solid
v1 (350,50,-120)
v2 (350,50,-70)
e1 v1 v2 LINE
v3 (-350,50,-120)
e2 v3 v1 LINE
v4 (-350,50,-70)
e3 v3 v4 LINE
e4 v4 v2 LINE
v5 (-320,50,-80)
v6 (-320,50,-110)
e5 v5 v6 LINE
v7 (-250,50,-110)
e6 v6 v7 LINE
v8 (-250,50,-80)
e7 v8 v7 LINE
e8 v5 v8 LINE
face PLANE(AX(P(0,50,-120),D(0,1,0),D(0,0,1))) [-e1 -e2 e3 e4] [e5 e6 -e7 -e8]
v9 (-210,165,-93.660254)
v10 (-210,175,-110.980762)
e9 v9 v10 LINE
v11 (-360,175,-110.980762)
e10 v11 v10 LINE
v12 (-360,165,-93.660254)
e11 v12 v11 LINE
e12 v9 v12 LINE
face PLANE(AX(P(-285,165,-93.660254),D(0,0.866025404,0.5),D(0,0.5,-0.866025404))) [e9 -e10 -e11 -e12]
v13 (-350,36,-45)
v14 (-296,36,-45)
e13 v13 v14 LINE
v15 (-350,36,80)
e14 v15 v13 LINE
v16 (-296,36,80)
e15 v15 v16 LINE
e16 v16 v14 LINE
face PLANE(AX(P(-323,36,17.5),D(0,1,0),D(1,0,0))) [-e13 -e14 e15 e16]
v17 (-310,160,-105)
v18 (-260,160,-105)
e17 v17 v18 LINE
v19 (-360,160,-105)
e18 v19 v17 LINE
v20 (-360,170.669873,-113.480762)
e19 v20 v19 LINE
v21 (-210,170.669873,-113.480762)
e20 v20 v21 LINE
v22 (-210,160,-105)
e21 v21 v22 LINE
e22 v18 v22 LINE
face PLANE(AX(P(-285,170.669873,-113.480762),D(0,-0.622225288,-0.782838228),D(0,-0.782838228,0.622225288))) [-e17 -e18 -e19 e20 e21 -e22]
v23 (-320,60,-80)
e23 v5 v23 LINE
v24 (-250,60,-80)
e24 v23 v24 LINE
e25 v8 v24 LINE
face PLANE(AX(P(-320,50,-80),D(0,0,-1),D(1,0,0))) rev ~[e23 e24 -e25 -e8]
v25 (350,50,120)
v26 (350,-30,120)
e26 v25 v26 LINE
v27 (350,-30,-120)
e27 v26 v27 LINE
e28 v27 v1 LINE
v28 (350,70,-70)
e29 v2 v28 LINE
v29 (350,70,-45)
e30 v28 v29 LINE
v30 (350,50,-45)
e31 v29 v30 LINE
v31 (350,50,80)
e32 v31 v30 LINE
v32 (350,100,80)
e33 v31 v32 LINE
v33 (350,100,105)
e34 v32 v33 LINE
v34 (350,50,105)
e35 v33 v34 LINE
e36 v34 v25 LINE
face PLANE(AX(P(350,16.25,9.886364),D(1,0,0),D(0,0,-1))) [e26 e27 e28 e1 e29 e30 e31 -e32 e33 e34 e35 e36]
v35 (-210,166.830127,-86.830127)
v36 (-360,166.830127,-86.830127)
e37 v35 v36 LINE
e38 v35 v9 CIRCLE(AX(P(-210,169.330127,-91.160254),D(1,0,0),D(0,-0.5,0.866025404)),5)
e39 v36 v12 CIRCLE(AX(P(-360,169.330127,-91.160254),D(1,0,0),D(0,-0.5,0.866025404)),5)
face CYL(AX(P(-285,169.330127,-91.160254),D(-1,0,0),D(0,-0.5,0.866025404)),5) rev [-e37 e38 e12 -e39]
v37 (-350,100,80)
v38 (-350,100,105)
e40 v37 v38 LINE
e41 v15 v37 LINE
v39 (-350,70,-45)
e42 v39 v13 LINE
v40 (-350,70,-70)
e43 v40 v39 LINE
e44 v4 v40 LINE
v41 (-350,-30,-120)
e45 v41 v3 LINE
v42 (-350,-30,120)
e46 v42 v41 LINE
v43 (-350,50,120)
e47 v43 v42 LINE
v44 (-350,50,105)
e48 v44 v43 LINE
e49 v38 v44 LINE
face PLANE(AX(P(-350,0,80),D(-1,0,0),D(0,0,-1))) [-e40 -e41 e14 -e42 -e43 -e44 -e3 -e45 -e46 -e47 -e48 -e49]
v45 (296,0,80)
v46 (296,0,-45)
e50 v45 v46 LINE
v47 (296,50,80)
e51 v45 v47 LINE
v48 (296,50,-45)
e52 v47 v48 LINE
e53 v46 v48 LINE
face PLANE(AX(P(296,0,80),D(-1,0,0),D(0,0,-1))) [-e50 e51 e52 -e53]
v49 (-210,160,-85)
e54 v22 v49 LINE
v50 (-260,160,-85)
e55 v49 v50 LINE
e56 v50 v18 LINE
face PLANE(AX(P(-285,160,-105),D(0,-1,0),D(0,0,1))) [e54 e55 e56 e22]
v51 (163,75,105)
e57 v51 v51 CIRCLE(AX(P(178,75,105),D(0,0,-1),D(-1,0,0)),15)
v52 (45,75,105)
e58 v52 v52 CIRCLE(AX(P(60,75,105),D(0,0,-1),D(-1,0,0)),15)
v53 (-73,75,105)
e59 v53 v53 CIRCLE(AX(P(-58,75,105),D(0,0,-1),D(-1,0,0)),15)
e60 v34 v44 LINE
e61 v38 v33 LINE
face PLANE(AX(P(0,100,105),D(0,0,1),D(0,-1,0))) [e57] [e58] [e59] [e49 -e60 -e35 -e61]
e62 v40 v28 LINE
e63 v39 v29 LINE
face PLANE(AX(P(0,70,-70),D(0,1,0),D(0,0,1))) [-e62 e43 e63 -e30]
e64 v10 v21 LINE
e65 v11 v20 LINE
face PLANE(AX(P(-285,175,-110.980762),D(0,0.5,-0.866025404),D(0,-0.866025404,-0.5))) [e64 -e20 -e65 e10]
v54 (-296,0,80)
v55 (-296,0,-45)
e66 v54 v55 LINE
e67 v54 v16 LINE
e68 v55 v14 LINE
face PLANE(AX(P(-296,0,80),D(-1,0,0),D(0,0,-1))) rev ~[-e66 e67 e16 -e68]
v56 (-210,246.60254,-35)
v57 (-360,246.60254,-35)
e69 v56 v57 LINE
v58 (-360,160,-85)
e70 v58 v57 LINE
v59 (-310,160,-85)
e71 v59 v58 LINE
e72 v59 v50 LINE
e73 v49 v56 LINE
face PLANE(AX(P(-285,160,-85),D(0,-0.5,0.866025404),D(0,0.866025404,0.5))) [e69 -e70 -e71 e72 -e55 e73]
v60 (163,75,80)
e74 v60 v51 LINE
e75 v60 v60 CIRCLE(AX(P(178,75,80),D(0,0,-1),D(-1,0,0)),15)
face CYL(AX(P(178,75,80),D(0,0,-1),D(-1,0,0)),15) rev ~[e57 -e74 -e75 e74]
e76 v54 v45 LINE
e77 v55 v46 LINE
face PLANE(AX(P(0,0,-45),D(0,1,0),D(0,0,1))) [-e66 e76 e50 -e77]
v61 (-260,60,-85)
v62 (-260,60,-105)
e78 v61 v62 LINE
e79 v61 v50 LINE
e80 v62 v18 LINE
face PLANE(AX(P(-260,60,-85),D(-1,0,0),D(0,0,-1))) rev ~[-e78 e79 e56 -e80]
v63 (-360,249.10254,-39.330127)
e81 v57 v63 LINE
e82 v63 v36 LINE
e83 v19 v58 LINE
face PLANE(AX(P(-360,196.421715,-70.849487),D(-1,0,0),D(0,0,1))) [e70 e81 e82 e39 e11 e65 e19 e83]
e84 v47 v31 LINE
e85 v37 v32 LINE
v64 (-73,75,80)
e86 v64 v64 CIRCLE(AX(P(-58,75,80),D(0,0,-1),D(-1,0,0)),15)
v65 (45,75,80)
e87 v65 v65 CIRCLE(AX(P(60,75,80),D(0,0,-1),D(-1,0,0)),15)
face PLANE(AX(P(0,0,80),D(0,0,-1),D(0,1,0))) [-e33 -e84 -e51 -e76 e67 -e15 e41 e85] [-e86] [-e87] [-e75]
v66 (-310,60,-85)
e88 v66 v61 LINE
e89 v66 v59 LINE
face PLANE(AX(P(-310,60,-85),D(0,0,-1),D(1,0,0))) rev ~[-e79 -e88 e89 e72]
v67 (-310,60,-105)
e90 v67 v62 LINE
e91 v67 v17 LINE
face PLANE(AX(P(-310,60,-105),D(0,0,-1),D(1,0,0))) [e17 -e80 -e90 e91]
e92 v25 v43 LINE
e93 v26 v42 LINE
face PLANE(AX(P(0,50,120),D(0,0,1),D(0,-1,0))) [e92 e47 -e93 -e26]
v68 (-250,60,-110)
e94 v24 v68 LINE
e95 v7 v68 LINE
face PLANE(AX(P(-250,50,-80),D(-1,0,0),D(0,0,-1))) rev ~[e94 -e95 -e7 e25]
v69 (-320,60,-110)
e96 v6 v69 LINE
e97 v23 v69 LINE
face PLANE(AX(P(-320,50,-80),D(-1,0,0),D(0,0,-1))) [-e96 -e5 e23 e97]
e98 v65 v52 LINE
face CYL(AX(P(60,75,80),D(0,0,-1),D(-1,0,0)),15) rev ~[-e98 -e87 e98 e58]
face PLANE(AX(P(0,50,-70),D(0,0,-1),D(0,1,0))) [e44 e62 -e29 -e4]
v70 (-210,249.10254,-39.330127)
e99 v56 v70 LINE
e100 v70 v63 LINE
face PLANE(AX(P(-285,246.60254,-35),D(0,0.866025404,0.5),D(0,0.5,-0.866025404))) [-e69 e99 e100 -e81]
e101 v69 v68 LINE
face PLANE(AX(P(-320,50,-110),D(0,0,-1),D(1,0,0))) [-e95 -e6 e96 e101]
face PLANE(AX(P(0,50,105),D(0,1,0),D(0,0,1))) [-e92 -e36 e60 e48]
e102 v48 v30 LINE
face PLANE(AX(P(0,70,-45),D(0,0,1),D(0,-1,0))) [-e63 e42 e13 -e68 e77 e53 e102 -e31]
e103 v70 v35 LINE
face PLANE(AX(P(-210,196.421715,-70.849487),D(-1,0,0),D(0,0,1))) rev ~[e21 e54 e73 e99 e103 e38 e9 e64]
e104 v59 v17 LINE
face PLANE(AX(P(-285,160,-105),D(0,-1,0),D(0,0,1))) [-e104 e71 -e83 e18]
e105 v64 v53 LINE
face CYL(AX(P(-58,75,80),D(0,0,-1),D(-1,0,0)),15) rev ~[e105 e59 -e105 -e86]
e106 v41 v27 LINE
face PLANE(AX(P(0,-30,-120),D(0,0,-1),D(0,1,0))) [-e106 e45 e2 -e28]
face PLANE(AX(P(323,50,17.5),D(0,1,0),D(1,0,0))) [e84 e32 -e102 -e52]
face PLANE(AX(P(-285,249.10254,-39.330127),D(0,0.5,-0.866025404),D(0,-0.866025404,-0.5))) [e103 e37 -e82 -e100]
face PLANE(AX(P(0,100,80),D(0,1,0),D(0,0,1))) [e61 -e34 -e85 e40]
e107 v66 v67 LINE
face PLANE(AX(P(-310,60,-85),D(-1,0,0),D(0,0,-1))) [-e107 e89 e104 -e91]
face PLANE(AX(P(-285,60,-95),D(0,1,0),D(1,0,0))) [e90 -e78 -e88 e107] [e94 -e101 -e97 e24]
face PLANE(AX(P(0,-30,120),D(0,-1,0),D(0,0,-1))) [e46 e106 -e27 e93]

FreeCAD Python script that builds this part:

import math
import FreeCAD as App
import Part
import Sketcher

V = App.Vector
Q = App.Units.Quantity


def add_polygon(sketch, points):
    """Adds a closed chain of lines whose ends are joined by coincident constraints."""
    first, n = sketch.GeometryCount, len(points)
    for a, b in zip(points, points[1:] + points[:1]):
        sketch.addGeometry(Part.LineSegment(App.Vector(*a, 0), App.Vector(*b, 0)), False)
    for i in range(n):
        sketch.addConstraint(Sketcher.Constraint("Coincident", first + i, 2, first + (i + 1) % n, 1))

doc = App.newDocument("Part")
body = doc.addObject("PartDesign::Body", "Body")

# Sketch on YZ plane
sketch1 = doc.addObject("Sketcher::SketchObject", "Sketch")
body.addObject(sketch1)
sketch1.AttachmentSupport = (doc.YZ_Plane, [""])
sketch1.MapMode = "FlatFace"
add_polygon(sketch1, [(-30, 120), (-30, -120), (50, -120), (50, -70), (70, -70), (70, -45), (0, -45), (0, 80), (100, 80), (100, 105), (50, 105), (50, 120)])  # lines 0-11
sketch1.addConstraint(Sketcher.Constraint("Vertical", 0))
sketch1.addConstraint(Sketcher.Constraint("Horizontal", 1))
sketch1.addConstraint(Sketcher.Constraint("Vertical", 2))
sketch1.addConstraint(Sketcher.Constraint("Horizontal", 3))
sketch1.addConstraint(Sketcher.Constraint("Vertical", 4))
sketch1.addConstraint(Sketcher.Constraint("Horizontal", 5))
sketch1.addConstraint(Sketcher.Constraint("Vertical", 6))
sketch1.addConstraint(Sketcher.Constraint("Horizontal", 7))
sketch1.addConstraint(Sketcher.Constraint("Vertical", 8))
sketch1.addConstraint(Sketcher.Constraint("Horizontal", 9))
sketch1.addConstraint(Sketcher.Constraint("Vertical", 10))
sketch1.addConstraint(Sketcher.Constraint("Horizontal", 11))
sketch1.addConstraint(Sketcher.Constraint("Symmetric", 1, 2, 10, 2, -1))
sketch1.addConstraint(Sketcher.Constraint("PointOnObject", 5, 2, -2))
sketch1.addConstraint(Sketcher.Constraint("Equal", 9, 2))
sketch1.addConstraint(Sketcher.Constraint("Equal", 4, 8))
sketch1.addConstraint(Sketcher.Constraint("DistanceX", 1, 1, 1, 2, 80.0))
sketch1.addConstraint(Sketcher.Constraint("DistanceX", 3, 1, 3, 2, 20.0))
sketch1.addConstraint(Sketcher.Constraint("DistanceX", 5, 2, 5, 1, 70.0))
sketch1.addConstraint(Sketcher.Constraint("DistanceX", 7, 1, 7, 2, 100.0))
sketch1.addConstraint(Sketcher.Constraint("DistanceY", 0, 2, 0, 1, 240.0))
sketch1.addConstraint(Sketcher.Constraint("DistanceY", 4, 1, 4, 2, 25.0))
sketch1.addConstraint(Sketcher.Constraint("DistanceY", 6, 1, 6, 2, 125.0))
pad1 = doc.addObject("PartDesign::Pad", "Pad")
body.addObject(pad1)
pad1.Profile = sketch1
pad1.Length = 700
pad1.Midplane = True

# Sketch on XZ plane
sketch2 = doc.addObject("Sketcher::SketchObject", "Sketch001")
body.addObject(sketch2)
sketch2.AttachmentSupport = (doc.XZ_Plane, [""])
sketch2.MapMode = "FlatFace"
add_polygon(sketch2, [(-350, -45), (-350, 80), (-296, 80), (-296, -45)])  # lines 0-3
sketch2.addConstraint(Sketcher.Constraint("Vertical", 0))
sketch2.addConstraint(Sketcher.Constraint("Horizontal", 1))
sketch2.addConstraint(Sketcher.Constraint("Vertical", 2))
sketch2.addConstraint(Sketcher.Constraint("Horizontal", 3))
sketch2.addConstraint(Sketcher.Constraint("DistanceX", 1, 1, 1, 2, 54.0))
sketch2.addConstraint(Sketcher.Constraint("DistanceY", 0, 1, 0, 2, 125.0))
sketch2.addConstraint(Sketcher.Constraint("DistanceX", 0, 2, -1, 1, 350.0))
sketch2.addConstraint(Sketcher.Constraint("DistanceY", -1, 1, 0, 2, 80.0))
pad2 = doc.addObject("PartDesign::Pad", "Pad001")
body.addObject(pad2)
pad2.Profile = sketch2
pad2.Length = 36
pad2.Reversed = True

# Sketch on XZ plane
sketch3 = doc.addObject("Sketcher::SketchObject", "Sketch002")
body.addObject(sketch3)
sketch3.AttachmentSupport = (doc.XZ_Plane, [""])
sketch3.MapMode = "FlatFace"
add_polygon(sketch3, [(296, -45), (296, 80), (350, 80), (350, -45)])  # lines 0-3
sketch3.addConstraint(Sketcher.Constraint("Vertical", 0))
sketch3.addConstraint(Sketcher.Constraint("Horizontal", 1))
sketch3.addConstraint(Sketcher.Constraint("Vertical", 2))
sketch3.addConstraint(Sketcher.Constraint("Horizontal", 3))
sketch3.addConstraint(Sketcher.Constraint("DistanceX", 1, 1, 1, 2, 54.0))
sketch3.addConstraint(Sketcher.Constraint("DistanceY", 0, 1, 0, 2, 125.0))
sketch3.addConstraint(Sketcher.Constraint("DistanceX", -1, 1, 0, 2, 296.0))
sketch3.addConstraint(Sketcher.Constraint("DistanceY", -1, 1, 0, 2, 80.0))
pad3 = doc.addObject("PartDesign::Pad", "Pad002")
body.addObject(pad3)
pad3.Profile = sketch3
pad3.Length = 50
pad3.Reversed = True

# Sketch on XY plane
sketch4 = doc.addObject("Sketcher::SketchObject", "Sketch003")
body.addObject(sketch4)
sketch4.AttachmentSupport = (doc.XY_Plane, [""])
sketch4.MapMode = "FlatFace"
sketch4.AttachmentOffset = App.Placement(V(0, 0, 80), App.Rotation())
sketch4.addGeometry(Part.Circle(V(178, 75, 0), V(0, 0, 1), 15), False)
sketch4.addGeometry(Part.Circle(V(60, 75, 0), V(0, 0, 1), 15), False)
sketch4.addGeometry(Part.Circle(V(-58, 75, 0), V(0, 0, 1), 15), False)
sketch4.addConstraint(Sketcher.Constraint("Equal", 0, 1))
sketch4.addConstraint(Sketcher.Constraint("Equal", 1, 2))
sketch4.addConstraint(Sketcher.Constraint("Horizontal", 0, 3, 1, 3))
sketch4.addConstraint(Sketcher.Constraint("Horizontal", 1, 3, 2, 3))
sketch4.addConstraint(Sketcher.Constraint("Diameter", 0, 30.0))
sketch4.addConstraint(Sketcher.Constraint("DistanceX", -1, 1, 0, 3, 178.0))
sketch4.addConstraint(Sketcher.Constraint("DistanceY", -1, 1, 0, 3, 75.0))
sketch4.addConstraint(Sketcher.Constraint("DistanceX", -1, 1, 1, 3, 60.0))
sketch4.addConstraint(Sketcher.Constraint("DistanceX", 2, 3, -1, 1, 58.0))
pocket1 = doc.addObject("PartDesign::Pocket", "Pocket")
body.addObject(pocket1)
pocket1.Profile = sketch4
pocket1.Length = 25
pocket1.Reversed = True

# Sketch on XZ plane
sketch5 = doc.addObject("Sketcher::SketchObject", "Sketch004")
body.addObject(sketch5)
sketch5.AttachmentSupport = (doc.XZ_Plane, [""])
sketch5.MapMode = "FlatFace"
sketch5.AttachmentOffset = App.Placement(V(0, 0, -50), App.Rotation())
add_polygon(sketch5, [(-320, -110), (-320, -80), (-250, -80), (-250, -110)])  # lines 0-3
sketch5.addConstraint(Sketcher.Constraint("Vertical", 0))
sketch5.addConstraint(Sketcher.Constraint("Horizontal", 1))
sketch5.addConstraint(Sketcher.Constraint("Vertical", 2))
sketch5.addConstraint(Sketcher.Constraint("Horizontal", 3))
sketch5.addConstraint(Sketcher.Constraint("DistanceX", 1, 1, 1, 2, 70.0))
sketch5.addConstraint(Sketcher.Constraint("DistanceY", 0, 1, 0, 2, 30.0))
sketch5.addConstraint(Sketcher.Constraint("DistanceX", 0, 2, -1, 1, 320.0))
sketch5.addConstraint(Sketcher.Constraint("DistanceY", 0, 2, -1, 1, 80.0))
pad4 = doc.addObject("PartDesign::Pad", "Pad003")
body.addObject(pad4)
pad4.Profile = sketch5
pad4.Length = 10
pad4.Reversed = True

# Sketch on XZ plane
sketch6 = doc.addObject("Sketcher::SketchObject", "Sketch005")
body.addObject(sketch6)
sketch6.AttachmentSupport = (doc.XZ_Plane, [""])
sketch6.MapMode = "FlatFace"
sketch6.AttachmentOffset = App.Placement(V(0, 0, -60), App.Rotation())
add_polygon(sketch6, [(-310, -105), (-310, -85), (-260, -85), (-260, -105)])  # lines 0-3
sketch6.addConstraint(Sketcher.Constraint("Vertical", 0))
sketch6.addConstraint(Sketcher.Constraint("Horizontal", 1))
sketch6.addConstraint(Sketcher.Constraint("Vertical", 2))
sketch6.addConstraint(Sketcher.Constraint("Horizontal", 3))
sketch6.addConstraint(Sketcher.Constraint("DistanceX", 1, 1, 1, 2, 50.0))
sketch6.addConstraint(Sketcher.Constraint("DistanceY", 0, 1, 0, 2, 20.0))
sketch6.addConstraint(Sketcher.Constraint("DistanceX", 0, 2, -1, 1, 310.0))
sketch6.addConstraint(Sketcher.Constraint("DistanceY", 0, 2, -1, 1, 85.0))
pad5 = doc.addObject("PartDesign::Pad", "Pad004")
body.addObject(pad5)
pad5.Profile = sketch6
pad5.Length = 100
pad5.Reversed = True

# Sketch on YZ plane
sketch7 = doc.addObject("Sketcher::SketchObject", "Sketch006")
body.addObject(sketch7)
sketch7.AttachmentSupport = (doc.YZ_Plane, [""])
sketch7.MapMode = "FlatFace"
sketch7.AttachmentOffset = App.Placement(V(0, 0, -285), App.Rotation())
sketch7.addGeometry(Part.LineSegment(V(160, -105, 0), V(160, -85, 0)), False)
sketch7.addGeometry(Part.LineSegment(V(160, -85, 0), V(246.6, -35, 0)), False)
sketch7.addGeometry(Part.LineSegment(V(246.6, -35, 0), V(249.1, -39.3, 0)), False)
sketch7.addGeometry(Part.LineSegment(V(249.1, -39.3, 0), V(166.8, -86.8, 0)), False)
sketch7.addGeometry(Part.ArcOfCircle(Part.Circle(V(169.3, -91.2, 0), V(0, 0, 1), 5), math.radians(120), math.radians(210)), False)
sketch7.addGeometry(Part.LineSegment(V(165, -93.7, 0), V(175, -111, 0)), False)
sketch7.addGeometry(Part.LineSegment(V(175, -111, 0), V(170.7, -113.5, 0)), False)
sketch7.addGeometry(Part.LineSegment(V(170.7, -113.5, 0), V(160, -105, 0)), False)
sketch7.addConstraint(Sketcher.Constraint("Coincident", 0, 2, 1, 1))
sketch7.addConstraint(Sketcher.Constraint("Coincident", 1, 2, 2, 1))
sketch7.addConstraint(Sketcher.Constraint("Coincident", 2, 2, 3, 1))
sketch7.addConstraint(Sketcher.Constraint("Tangent", 3, 2, 4, 1))
sketch7.addConstraint(Sketcher.Constraint("Tangent", 4, 2, 5, 1))
sketch7.addConstraint(Sketcher.Constraint("Coincident", 5, 2, 6, 1))
sketch7.addConstraint(Sketcher.Constraint("Coincident", 6, 2, 7, 1))
sketch7.addConstraint(Sketcher.Constraint("Coincident", 7, 2, 0, 1))
sketch7.addConstraint(Sketcher.Constraint("Vertical", 0))
sketch7.addConstraint(Sketcher.Constraint("Perpendicular", 1, 2))
sketch7.addConstraint(Sketcher.Constraint("Perpendicular", 2, 3))
sketch7.addConstraint(Sketcher.Constraint("Perpendicular", 3, 5))
sketch7.addConstraint(Sketcher.Constraint("Perpendicular", 5, 6))
sketch7.addConstraint(Sketcher.Constraint("Equal", 2, 6))
sketch7.addConstraint(Sketcher.Constraint("Radius", 4, 5.0))
sketch7.addConstraint(Sketcher.Constraint("DistanceY", 0, 1, 0, 2, 20.0))
sketch7.addConstraint(Sketcher.Constraint("Angle", 1, Q("30 deg")))
sketch7.addConstraint(Sketcher.Constraint("Distance", 1, 100.0))
sketch7.addConstraint(Sketcher.Constraint("Distance", 2, 5.0))
sketch7.addConstraint(Sketcher.Constraint("Distance", 3, 95.0))
sketch7.addConstraint(Sketcher.Constraint("Distance", 5, 20.0))
sketch7.addConstraint(Sketcher.Constraint("DistanceX", -1, 1, 0, 2, 160.0))
sketch7.addConstraint(Sketcher.Constraint("DistanceY", 0, 2, -1, 1, 85.0))
pad6 = doc.addObject("PartDesign::Pad", "Pad005")
body.addObject(pad6)
pad6.Profile = sketch7
pad6.Length = 150
pad6.Midplane = True

doc.recompute()
